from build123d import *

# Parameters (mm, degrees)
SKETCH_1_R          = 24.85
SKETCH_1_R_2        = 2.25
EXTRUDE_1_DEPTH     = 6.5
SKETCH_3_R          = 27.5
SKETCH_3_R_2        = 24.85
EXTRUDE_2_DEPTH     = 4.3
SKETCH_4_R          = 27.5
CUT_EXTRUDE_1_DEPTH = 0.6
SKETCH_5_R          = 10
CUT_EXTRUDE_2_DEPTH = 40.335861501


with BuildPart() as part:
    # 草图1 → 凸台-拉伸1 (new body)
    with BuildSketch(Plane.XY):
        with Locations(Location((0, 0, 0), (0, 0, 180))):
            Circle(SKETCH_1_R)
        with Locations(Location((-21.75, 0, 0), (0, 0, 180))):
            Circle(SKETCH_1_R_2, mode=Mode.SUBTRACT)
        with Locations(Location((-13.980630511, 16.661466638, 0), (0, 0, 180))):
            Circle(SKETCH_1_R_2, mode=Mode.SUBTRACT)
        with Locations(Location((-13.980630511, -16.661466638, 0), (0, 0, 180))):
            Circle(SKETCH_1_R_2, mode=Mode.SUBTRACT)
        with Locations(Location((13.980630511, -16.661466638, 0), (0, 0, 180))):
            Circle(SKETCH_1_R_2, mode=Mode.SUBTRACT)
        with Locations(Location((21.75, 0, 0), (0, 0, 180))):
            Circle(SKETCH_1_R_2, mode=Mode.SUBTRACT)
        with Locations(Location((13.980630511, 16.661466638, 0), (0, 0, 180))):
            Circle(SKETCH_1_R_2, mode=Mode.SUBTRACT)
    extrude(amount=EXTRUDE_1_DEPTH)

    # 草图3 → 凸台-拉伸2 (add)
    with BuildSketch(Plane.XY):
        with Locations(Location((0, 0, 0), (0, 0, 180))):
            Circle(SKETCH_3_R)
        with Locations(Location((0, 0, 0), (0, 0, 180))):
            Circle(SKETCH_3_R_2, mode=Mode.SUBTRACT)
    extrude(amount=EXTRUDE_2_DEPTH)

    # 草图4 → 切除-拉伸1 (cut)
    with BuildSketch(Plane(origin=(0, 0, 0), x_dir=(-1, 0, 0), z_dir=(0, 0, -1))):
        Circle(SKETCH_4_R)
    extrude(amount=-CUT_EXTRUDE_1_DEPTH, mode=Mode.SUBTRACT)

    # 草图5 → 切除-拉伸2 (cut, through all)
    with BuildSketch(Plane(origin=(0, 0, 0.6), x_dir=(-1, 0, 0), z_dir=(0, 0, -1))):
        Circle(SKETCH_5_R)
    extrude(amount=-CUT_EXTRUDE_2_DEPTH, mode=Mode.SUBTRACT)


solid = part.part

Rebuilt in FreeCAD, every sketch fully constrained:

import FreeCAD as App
import Part
import Sketcher
from FreeCAD import Vector
Q = App.Units.Quantity

doc = App.newDocument("Part")
body = doc.addObject("PartDesign::Body", "Body")

# Sketch on XY plane
sketch1 = body.newObject("Sketcher::SketchObject", "Sketch")
sketch1.AttachmentSupport = (doc.getObject("XY_Plane"), [""])
sketch1.MapMode = "FlatFace"
sketch1.addGeometry(Part.Circle(Vector(0, 0, 0), Vector(0, 0, 1), 24.9), False)
sketch1.addGeometry(Part.Circle(Vector(14, 16.7, 0), Vector(0, 0, 1), 2.2), False)
sketch1.addGeometry(Part.Circle(Vector(-14, 16.7, 0), Vector(0, 0, 1), 2.2), False)
sketch1.addGeometry(Part.Circle(Vector(21.8, 0, 0), Vector(0, 0, 1), 2.2), False)
sketch1.addGeometry(Part.Circle(Vector(14, -16.7, 0), Vector(0, 0, 1), 2.2), False)
sketch1.addGeometry(Part.Circle(Vector(-21.8, 0, 0), Vector(0, 0, 1), 2.2), False)
sketch1.addGeometry(Part.Circle(Vector(-14, -16.7, 0), Vector(0, 0, 1), 2.2), False)
sketch1.addConstraint(Sketcher.Constraint("Coincident", 0, 3, -1, 1))
sketch1.addConstraint(Sketcher.Constraint("Equal", 1, 2))
sketch1.addConstraint(Sketcher.Constraint("Equal", 2, 3))
sketch1.addConstraint(Sketcher.Constraint("Equal", 3, 4))
sketch1.addConstraint(Sketcher.Constraint("Equal", 4, 5))
sketch1.addConstraint(Sketcher.Constraint("Equal", 5, 6))
sketch1.addConstraint(Sketcher.Constraint("Symmetric", 2, 3, 4, 3, -1, 1))
sketch1.addConstraint(Sketcher.Constraint("Symmetric", 3, 3, 5, 3, -1, 1))
sketch1.addConstraint(Sketcher.Constraint("Symmetric", 1, 3, 6, 3, -1, 1))
sketch1.addConstraint(Sketcher.Constraint("Symmetric", 1, 3, 2, 3, -2))
sketch1.addConstraint(Sketcher.Constraint("PointOnObject", 3, 3, -1))
sketch1.addConstraint(Sketcher.Constraint("Diameter", 0, Q("49.7 mm")))
sketch1.addConstraint(Sketcher.Constraint("Diameter", 1, Q("4.5 mm")))
sketch1.addConstraint(Sketcher.Constraint("DistanceX", 5, 3, 3, 3, Q("43.5 mm")))
sketch1.addConstraint(Sketcher.Constraint("DistanceX", -1, 1, 1, 3, Q("13.980631 mm")))
sketch1.addConstraint(Sketcher.Constraint("DistanceY", -1, 1, 1, 3, Q("16.661467 mm")))
pad1 = body.newObject("PartDesign::Pad", "Pad")
pad1.Profile = sketch1
pad1.Length = 6.5

# Sketch on XY plane
sketch2 = body.newObject("Sketcher::SketchObject", "Sketch001")
sketch2.AttachmentSupport = (doc.getObject("XY_Plane"), [""])
sketch2.MapMode = "FlatFace"
sketch2.addGeometry(Part.Circle(Vector(0, 0, 0), Vector(0, 0, 1), 28), False)
sketch2.addGeometry(Part.Circle(Vector(0, 0, 0), Vector(0, 0, 1), 25), False)
sketch2.addConstraint(Sketcher.Constraint("Coincident", 0, 3, -1, 1))
sketch2.addConstraint(Sketcher.Constraint("Coincident", 1, 3, -1, 1))
sketch2.addConstraint(Sketcher.Constraint("Diameter", 0, Q("55 mm")))
sketch2.addConstraint(Sketcher.Constraint("Diameter", 1, Q("49.7 mm")))
pad2 = body.newObject("PartDesign::Pad", "Pad001")
pad2.Profile = sketch2
pad2.Length = 4.3

# Sketch on XY plane
sketch3 = body.newObject("Sketcher::SketchObject", "Sketch002")
sketch3.AttachmentSupport = (doc.getObject("XY_Plane"), [""])
sketch3.MapMode = "FlatFace"
sketch3.addGeometry(Part.Circle(Vector(0, 0, 0), Vector(0, 0, 1), 28), False)
sketch3.addConstraint(Sketcher.Constraint("Coincident", 0, 3, -1, 1))
sketch3.addConstraint(Sketcher.Constraint("Diameter", 0, Q("55 mm")))
pocket1 = body.newObject("PartDesign::Pocket", "Pocket")
pocket1.Profile = sketch3
pocket1.Length = 0.6
pocket1.Reversed = True

# Sketch on XY plane
sketch4 = body.newObject("Sketcher::SketchObject", "Sketch003")
sketch4.AttachmentSupport = (doc.getObject("XY_Plane"), [""])
sketch4.MapMode = "FlatFace"
sketch4.AttachmentOffset = App.Placement(Vector(0, 0, 0.6), App.Rotation())
sketch4.addGeometry(Part.Circle(Vector(0, 0, 0), Vector(0, 0, 1), 10), False)
sketch4.addConstraint(Sketcher.Constraint("Coincident", 0, 3, -1, 1))
sketch4.addConstraint(Sketcher.Constraint("Diameter", 0, Q("20 mm")))
pocket2 = body.newObject("PartDesign::Pocket", "Pocket001")
pocket2.Profile = sketch4
pocket2.Type = "ThroughAll"
pocket2.Reversed = True

doc.recompute()
